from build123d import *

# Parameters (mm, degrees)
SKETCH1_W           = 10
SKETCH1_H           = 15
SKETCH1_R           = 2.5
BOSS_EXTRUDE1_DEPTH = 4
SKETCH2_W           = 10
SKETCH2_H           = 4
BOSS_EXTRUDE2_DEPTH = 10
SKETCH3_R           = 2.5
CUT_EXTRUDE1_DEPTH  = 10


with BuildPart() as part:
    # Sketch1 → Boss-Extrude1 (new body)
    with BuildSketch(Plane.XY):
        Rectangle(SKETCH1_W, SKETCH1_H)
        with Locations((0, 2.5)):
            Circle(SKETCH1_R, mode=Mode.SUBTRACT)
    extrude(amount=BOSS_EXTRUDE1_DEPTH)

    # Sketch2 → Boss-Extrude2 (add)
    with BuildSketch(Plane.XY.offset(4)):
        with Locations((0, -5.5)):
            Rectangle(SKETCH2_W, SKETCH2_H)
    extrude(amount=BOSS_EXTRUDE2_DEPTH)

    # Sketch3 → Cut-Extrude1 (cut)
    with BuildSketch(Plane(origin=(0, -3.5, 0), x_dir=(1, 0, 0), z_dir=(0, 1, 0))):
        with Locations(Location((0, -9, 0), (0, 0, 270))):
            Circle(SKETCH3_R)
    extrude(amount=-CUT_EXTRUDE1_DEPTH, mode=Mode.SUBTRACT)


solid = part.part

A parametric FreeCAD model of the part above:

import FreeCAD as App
import Part
import Sketcher
from FreeCAD import Vector

doc = App.newDocument("Part")
body = doc.addObject("PartDesign::Body", "Body")

# Sketch on XY plane
sketch1 = body.newObject("Sketcher::SketchObject", "Sketch")
sketch1.AttachmentSupport = (doc.getObject("XY_Plane"), [""])
sketch1.MapMode = "FlatFace"
sketch1.addGeometry(Part.LineSegment(Vector(-5, 7.5, 0), Vector(-5, -7.5, 0)), False)
sketch1.addGeometry(Part.LineSegment(Vector(-5, -7.5, 0), Vector(5, -7.5, 0)), False)
sketch1.addGeometry(Part.LineSegment(Vector(5, -7.5, 0), Vector(5, 7.5, 0)), False)
sketch1.addGeometry(Part.LineSegment(Vector(5, 7.5, 0), Vector(-5, 7.5, 0)), False)
sketch1.addGeometry(Part.Circle(Vector(0, 2.5, 0), Vector(0, 0, 1), 2.5), False)
sketch1.addConstraint(Sketcher.Constraint("Coincident", 0, 2, 1, 1))
sketch1.addConstraint(Sketcher.Constraint("Coincident", 1, 2, 2, 1))
sketch1.addConstraint(Sketcher.Constraint("Coincident", 2, 2, 3, 1))
sketch1.addConstraint(Sketcher.Constraint("Coincident", 3, 2, 0, 1))
sketch1.addConstraint(Sketcher.Constraint("Vertical", 0))
sketch1.addConstraint(Sketcher.Constraint("Horizontal", 1))
sketch1.addConstraint(Sketcher.Constraint("Vertical", 2))
sketch1.addConstraint(Sketcher.Constraint("Horizontal", 3))
sketch1.addConstraint(Sketcher.Constraint("Symmetric", 0, 2, 2, 2, -1, 1))
sketch1.addConstraint(Sketcher.Constraint("PointOnObject", 4, 3, -2))
sketch1.addConstraint(Sketcher.Constraint("Diameter", 4, 5.0))
sketch1.addConstraint(Sketcher.Constraint("DistanceX", 1, 1, 1, 2, 10.0))
sketch1.addConstraint(Sketcher.Constraint("DistanceY", 0, 2, 0, 1, 15.0))
sketch1.addConstraint(Sketcher.Constraint("DistanceY", 0, 2, 4, 3, 10.0))
pad1 = body.newObject("PartDesign::Pad", "Pad")
pad1.Profile = sketch1
pad1.Length = 4

# Sketch on XY plane
sketch2 = body.newObject("Sketcher::SketchObject", "Sketch001")
sketch2.AttachmentSupport = (doc.getObject("XY_Plane"), [""])
sketch2.MapMode = "FlatFace"
sketch2.AttachmentOffset = App.Placement(Vector(0, 0, 4), App.Rotation())
sketch2.addGeometry(Part.LineSegment(Vector(-5, -3.5, 0), Vector(-5, -7.5, 0)), False)
sketch2.addGeometry(Part.LineSegment(Vector(-5, -7.5, 0), Vector(5, -7.5, 0)), False)
sketch2.addGeometry(Part.LineSegment(Vector(5, -7.5, 0), Vector(5, -3.5, 0)), False)
sketch2.addGeometry(Part.LineSegment(Vector(5, -3.5, 0), Vector(-5, -3.5, 0)), False)
sketch2.addConstraint(Sketcher.Constraint("Coincident", 0, 2, 1, 1))
sketch2.addConstraint(Sketcher.Constraint("Coincident", 1, 2, 2, 1))
sketch2.addConstraint(Sketcher.Constraint("Coincident", 2, 2, 3, 1))
sketch2.addConstraint(Sketcher.Constraint("Coincident", 3, 2, 0, 1))
sketch2.addConstraint(Sketcher.Constraint("Vertical", 0))
sketch2.addConstraint(Sketcher.Constraint("Horizontal", 1))
sketch2.addConstraint(Sketcher.Constraint("Vertical", 2))
sketch2.addConstraint(Sketcher.Constraint("Horizontal", 3))
sketch2.addConstraint(Sketcher.Constraint("DistanceX", 1, 1, 1, 2, 10.0))
sketch2.addConstraint(Sketcher.Constraint("DistanceY", 0, 2, 0, 1, 4.0))
sketch2.addConstraint(Sketcher.Constraint("DistanceX", 0, 2, -1, 1, 5.0))
sketch2.addConstraint(Sketcher.Constraint("DistanceY", 0, 2, -1, 1, 7.5))
pad2 = body.newObject("PartDesign::Pad", "Pad001")
pad2.Profile = sketch2
pad2.Length = 10

# Sketch on XZ plane
sketch3 = body.newObject("Sketcher::SketchObject", "Sketch002")
sketch3.AttachmentSupport = (doc.getObject("XZ_Plane"), [""])
sketch3.MapMode = "FlatFace"
sketch3.AttachmentOffset = App.Placement(Vector(0, 0, 3.5), App.Rotation())
sketch3.addGeometry(Part.Circle(Vector(0, 9, 0), Vector(0, 0, 1), 2.5), False)
sketch3.addConstraint(Sketcher.Constraint("PointOnObject", 0, 3, -2))
sketch3.addConstraint(Sketcher.Constraint("Diameter", 0, 5.0))
sketch3.addConstraint(Sketcher.Constraint("DistanceY", -1, 1, 0, 3, 9.0))
pocket1 = body.newObject("PartDesign::Pocket", "Pocket")
pocket1.Profile = sketch3
pocket1.Length = 10
pocket1.Reversed = True

doc.recompute()
